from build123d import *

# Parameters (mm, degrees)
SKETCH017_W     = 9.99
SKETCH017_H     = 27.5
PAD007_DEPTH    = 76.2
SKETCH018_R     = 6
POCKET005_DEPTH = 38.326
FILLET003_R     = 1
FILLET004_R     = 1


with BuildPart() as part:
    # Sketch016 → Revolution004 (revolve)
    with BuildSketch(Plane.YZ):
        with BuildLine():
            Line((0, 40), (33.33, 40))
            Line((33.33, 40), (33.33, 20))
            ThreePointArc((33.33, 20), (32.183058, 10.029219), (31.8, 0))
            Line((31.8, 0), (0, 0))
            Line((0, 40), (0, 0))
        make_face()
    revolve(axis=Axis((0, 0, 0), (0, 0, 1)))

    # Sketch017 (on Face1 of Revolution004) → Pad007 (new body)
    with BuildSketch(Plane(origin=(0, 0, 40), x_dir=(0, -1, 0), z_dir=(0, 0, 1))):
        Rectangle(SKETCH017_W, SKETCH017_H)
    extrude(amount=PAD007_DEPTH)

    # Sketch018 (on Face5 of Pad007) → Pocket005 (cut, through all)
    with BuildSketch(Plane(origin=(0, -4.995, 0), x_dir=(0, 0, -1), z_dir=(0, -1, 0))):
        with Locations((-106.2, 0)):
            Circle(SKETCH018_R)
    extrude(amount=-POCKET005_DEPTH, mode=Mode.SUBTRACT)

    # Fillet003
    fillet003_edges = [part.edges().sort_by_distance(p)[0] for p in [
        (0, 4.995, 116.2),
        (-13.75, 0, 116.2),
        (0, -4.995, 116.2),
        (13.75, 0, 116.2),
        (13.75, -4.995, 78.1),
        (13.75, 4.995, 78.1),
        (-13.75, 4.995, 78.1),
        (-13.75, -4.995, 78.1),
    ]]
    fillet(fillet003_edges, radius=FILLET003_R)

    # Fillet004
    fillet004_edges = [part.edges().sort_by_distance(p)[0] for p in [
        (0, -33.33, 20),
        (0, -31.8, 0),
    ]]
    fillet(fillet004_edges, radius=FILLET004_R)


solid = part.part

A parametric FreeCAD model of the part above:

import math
import FreeCAD as App
import Part
import Sketcher
from FreeCAD import Vector


def edges_at(feature, points):
    """Names of the edges that pass closest to the given points."""
    edges = feature.Shape.Edges
    near = lambda p: min(range(len(edges)), key=lambda i: edges[i].distToShape(Part.Vertex(*p))[0])
    return sorted({f"Edge{near(p) + 1}" for p in points})

doc = App.newDocument("Part")
body = doc.addObject("PartDesign::Body", "Body")

sketch1 = body.newObject("Sketcher::SketchObject", "Sketch")
sketch1.AttachmentSupport = (doc.getObject("YZ_Plane"), [""])
sketch1.MapMode = "FlatFace"
sketch1.addGeometry([
    Part.LineSegment(Vector(33.33, 40, 0), Vector(0, 40, 0)),
    Part.LineSegment(Vector(0, 40, 0), Vector(0, 0, 0)),
    Part.LineSegment(Vector(0, 0, 0), Vector(31.8, 0, 0)),
    Part.ArcOfCircle(Part.Circle(Vector(163.283946, 0.000001, 0), Vector(0, 0, 1), 131.483946), math.radians(171.250786), math.radians(180)),
    Part.LineSegment(Vector(33.33, 20, 0), Vector(33.33, 40, 0)),
], False)
sketch1.addConstraint([
    Sketcher.Constraint("Coincident", 0, 2, 1, 1),
    Sketcher.Constraint("Coincident", 1, 2, 2, 1),
    Sketcher.Constraint("Coincident", 2, 2, 3, 2),
    Sketcher.Constraint("Coincident", 3, 1, 4, 1),
    Sketcher.Constraint("Coincident", 4, 2, 0, 1),
    Sketcher.Constraint("Horizontal", 0),
    Sketcher.Constraint("Vertical", 1),
    Sketcher.Constraint("Horizontal", 2),
    Sketcher.Constraint("Vertical", 4),
    Sketcher.Constraint("Coincident", 1, 2, -1, 1),
    Sketcher.Constraint("PointOnObject", 3, 3, -1),
    Sketcher.Constraint("DistanceY", 1, 2, 1, 1, 40.0),
    Sketcher.Constraint("DistanceY", 4, 1, 4, 2, 20.0),
    Sketcher.Constraint("DistanceX", 2, 1, 2, 2, 31.8),
    Sketcher.Constraint("DistanceX", 0, 2, 0, 1, 33.33),
])
revolution = body.newObject("PartDesign::Revolution", "Revolution")
revolution.Profile = sketch1
revolution.ReferenceAxis = (sketch1, ["V_Axis"])
revolution.Angle = 360

sketch2 = body.newObject("Sketcher::SketchObject", "Sketch001")
sketch2.AttachmentSupport = (doc.getObject("XY_Plane"), [""])
sketch2.MapMode = "FlatFace"
sketch2.AttachmentOffset = App.Placement(Vector(0, 0, 40), App.Rotation())
sketch2.addGeometry([
    Part.LineSegment(Vector(13.75, 4.995, 0), Vector(-13.75, 4.995, 0)),
    Part.LineSegment(Vector(-13.75, 4.995, 0), Vector(-13.75, -4.995, 0)),
    Part.LineSegment(Vector(-13.75, -4.995, 0), Vector(13.75, -4.995, 0)),
    Part.LineSegment(Vector(13.75, -4.995, 0), Vector(13.75, 4.995, 0)),
], False)
sketch2.addConstraint([
    Sketcher.Constraint("Coincident", 0, 2, 1, 1),
    Sketcher.Constraint("Coincident", 1, 2, 2, 1),
    Sketcher.Constraint("Coincident", 2, 2, 3, 1),
    Sketcher.Constraint("Coincident", 3, 2, 0, 1),
    Sketcher.Constraint("Horizontal", 0),
    Sketcher.Constraint("Vertical", 1),
    Sketcher.Constraint("Horizontal", 2),
    Sketcher.Constraint("Vertical", 3),
    Sketcher.Constraint("Symmetric", 0, 2, 2, 2, -1, 1),
    Sketcher.Constraint("DistanceX", 0, 2, 0, 1, 27.5),
    Sketcher.Constraint("DistanceY", 1, 2, 1, 1, 9.99),
])
pad1 = body.newObject("PartDesign::Pad", "Pad")
pad1.Profile = sketch2
pad1.Length = 76.2

sketch3 = body.newObject("Sketcher::SketchObject", "Sketch002")
sketch3.AttachmentSupport = (doc.getObject("XZ_Plane"), [""])
sketch3.MapMode = "FlatFace"
sketch3.AttachmentOffset = App.Placement(Vector(0, 0, 4.995), App.Rotation())
sketch3.addGeometry(Part.Circle(Vector(0, 106.2, 0), Vector(0, 0, 1), 6), False)
sketch3.addConstraint([
    Sketcher.Constraint("PointOnObject", 0, 3, -2),
    Sketcher.Constraint("Diameter", 0, 12.0),
    Sketcher.Constraint("DistanceY", -1, 1, 0, 3, 106.2),
])
pocket1 = body.newObject("PartDesign::Pocket", "Pocket")
pocket1.Profile = sketch3
pocket1.Type = "ThroughAll"
doc.recompute()

fillet = body.newObject("PartDesign::Fillet", "Fillet")
fillet.Base = (pocket1, edges_at(pocket1, [
    (0, 4.995, 116.2),
    (-13.75, 0, 116.2),
    (0, -4.995, 116.2),
    (13.75, 0, 116.2),
    (13.75, -4.995, 78.1),
    (13.75, 4.995, 78.1),
    (-13.75, 4.995, 78.1),
    (-13.75, -4.995, 78.1),
]))
fillet.Radius = 1
doc.recompute()

fillet2 = body.newObject("PartDesign::Fillet", "Fillet001")
fillet2.Base = (fillet, edges_at(fillet, [(0, -33.33, 20), (0, -31.8, 0)]))
fillet2.Radius = 1

doc.recompute()
